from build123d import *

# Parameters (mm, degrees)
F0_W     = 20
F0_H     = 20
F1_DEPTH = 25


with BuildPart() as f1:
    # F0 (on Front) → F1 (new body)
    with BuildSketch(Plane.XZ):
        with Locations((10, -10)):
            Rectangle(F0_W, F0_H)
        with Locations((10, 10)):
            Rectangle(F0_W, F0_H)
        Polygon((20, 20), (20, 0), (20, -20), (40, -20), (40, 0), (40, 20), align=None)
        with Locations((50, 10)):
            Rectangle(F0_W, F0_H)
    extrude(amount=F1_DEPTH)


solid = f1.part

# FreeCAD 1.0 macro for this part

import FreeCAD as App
import Part
import Sketcher


def add_polygon(sketch, points):
    """Adds a closed chain of lines whose ends are joined by coincident constraints."""
    first, n = sketch.GeometryCount, len(points)
    for a, b in zip(points, points[1:] + points[:1]):
        sketch.addGeometry(Part.LineSegment(App.Vector(*a, 0), App.Vector(*b, 0)), False)
    for i in range(n):
        sketch.addConstraint(Sketcher.Constraint("Coincident", first + i, 2, first + (i + 1) % n, 1))

doc = App.newDocument("Part")
body = doc.addObject("PartDesign::Body", "Body")

sketch1 = body.newObject("Sketcher::SketchObject", "Sketch")
sketch1.AttachmentSupport = (doc.getObject("XZ_Plane"), [""])
sketch1.MapMode = "FlatFace"
add_polygon(sketch1, [(0, -20), (40, -20), (40, 0), (60, 0), (60, 20), (0, 20)])
sketch1.addConstraint(Sketcher.Constraint("Horizontal", 0))
sketch1.addConstraint(Sketcher.Constraint("Vertical", 1))
sketch1.addConstraint(Sketcher.Constraint("Horizontal", 2))
sketch1.addConstraint(Sketcher.Constraint("Vertical", 3))
sketch1.addConstraint(Sketcher.Constraint("Horizontal", 4))
sketch1.addConstraint(Sketcher.Constraint("Vertical", 5))
sketch1.addConstraint(Sketcher.Constraint("Symmetric", 4, 2, 5, 2, -1, 1))
sketch1.addConstraint(Sketcher.Constraint("PointOnObject", 1, 2, -1))
sketch1.addConstraint(Sketcher.Constraint("Equal", 2, 1))
sketch1.addConstraint(Sketcher.Constraint("Equal", 0, 5))
sketch1.addConstraint(Sketcher.Constraint("DistanceX", 0, 1, 0, 2, 40.0))
pad1 = body.newObject("PartDesign::Pad", "Pad")
pad1.Profile = sketch1
pad1.Length = 25

doc.recompute()
